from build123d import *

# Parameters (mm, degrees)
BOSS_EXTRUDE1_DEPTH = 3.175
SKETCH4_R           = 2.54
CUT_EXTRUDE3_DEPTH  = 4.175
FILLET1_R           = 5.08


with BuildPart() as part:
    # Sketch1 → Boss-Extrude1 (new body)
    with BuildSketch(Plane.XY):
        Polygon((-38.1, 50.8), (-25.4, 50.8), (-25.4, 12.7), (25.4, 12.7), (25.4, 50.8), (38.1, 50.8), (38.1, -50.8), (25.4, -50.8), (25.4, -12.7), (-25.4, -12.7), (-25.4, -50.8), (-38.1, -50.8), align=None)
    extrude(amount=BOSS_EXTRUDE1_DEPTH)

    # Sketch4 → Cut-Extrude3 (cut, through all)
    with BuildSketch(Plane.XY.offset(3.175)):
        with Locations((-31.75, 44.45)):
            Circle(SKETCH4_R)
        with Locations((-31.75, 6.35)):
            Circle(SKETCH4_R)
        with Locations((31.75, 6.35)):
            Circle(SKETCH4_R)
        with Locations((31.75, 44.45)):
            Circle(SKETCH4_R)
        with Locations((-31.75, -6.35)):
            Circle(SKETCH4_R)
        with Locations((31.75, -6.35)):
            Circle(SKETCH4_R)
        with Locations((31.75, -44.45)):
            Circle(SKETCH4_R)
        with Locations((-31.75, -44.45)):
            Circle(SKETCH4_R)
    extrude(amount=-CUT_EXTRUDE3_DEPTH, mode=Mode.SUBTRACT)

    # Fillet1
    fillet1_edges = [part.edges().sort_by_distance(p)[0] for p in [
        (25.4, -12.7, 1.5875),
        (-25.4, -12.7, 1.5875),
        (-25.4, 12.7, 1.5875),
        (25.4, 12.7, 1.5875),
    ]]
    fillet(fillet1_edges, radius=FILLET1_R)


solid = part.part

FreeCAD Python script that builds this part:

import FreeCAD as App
import Part
import Sketcher
from FreeCAD import Vector
Q = App.Units.Quantity


def edges_at(feature, points):
    """Names of the edges that pass closest to the given points."""
    edges = feature.Shape.Edges
    near = lambda p: min(range(len(edges)), key=lambda i: edges[i].distToShape(Part.Vertex(*p))[0])
    return sorted({f"Edge{near(p) + 1}" for p in points})


def add_polygon(sketch, points):
    """Adds a closed chain of lines whose ends are joined by coincident constraints."""
    first, n = sketch.GeometryCount, len(points)
    for a, b in zip(points, points[1:] + points[:1]):
        sketch.addGeometry(Part.LineSegment(App.Vector(*a, 0), App.Vector(*b, 0)), False)
    for i in range(n):
        sketch.addConstraint(Sketcher.Constraint("Coincident", first + i, 2, first + (i + 1) % n, 1))

doc = App.newDocument("Part")
body = doc.addObject("PartDesign::Body", "Body")

# Sketch on XY plane
sketch1 = body.newObject("Sketcher::SketchObject", "Sketch")
sketch1.AttachmentSupport = (doc.getObject("XY_Plane"), [""])
sketch1.MapMode = "FlatFace"
add_polygon(sketch1, [(-25.4, 50.8), (-38.1, 50.8), (-38.1, -50.8), (-25.4, -50.8), (-25.4, -12.7), (25.4, -12.7), (25.4, -50.8), (38.1, -50.8), (38.1, 50.8), (25.4, 50.8), (25.4, 12.7), (-25.4, 12.7)])  # lines 0-11
sketch1.addConstraint([
    Sketcher.Constraint("Horizontal", 0),
    Sketcher.Constraint("Vertical", 1),
    Sketcher.Constraint("Horizontal", 2),
    Sketcher.Constraint("Vertical", 3),
    Sketcher.Constraint("Horizontal", 4),
    Sketcher.Constraint("Vertical", 5),
    Sketcher.Constraint("Horizontal", 6),
    Sketcher.Constraint("Vertical", 7),
    Sketcher.Constraint("Horizontal", 8),
    Sketcher.Constraint("Vertical", 9),
    Sketcher.Constraint("Horizontal", 10),
    Sketcher.Constraint("Vertical", 11),
    Sketcher.Constraint("Symmetric", 0, 2, 6, 2, -1, 1),
    Sketcher.Constraint("Symmetric", 2, 2, 8, 2, -1, 1),
    Sketcher.Constraint("Symmetric", 4, 2, 10, 2, -1, 1),
    Sketcher.Constraint("Symmetric", 2, 2, 5, 2, -2),
    Sketcher.Constraint("DistanceX", 4, 1, 4, 2, Q("2 in")),
    Sketcher.Constraint("DistanceY", 1, 2, 1, 1, Q("4 in")),
    Sketcher.Constraint("DistanceX", 0, 2, 0, 1, Q("0.5 in")),
    Sketcher.Constraint("DistanceY", 3, 1, 3, 2, Q("1.5 in")),
])
pad1 = body.newObject("PartDesign::Pad", "Pad")
pad1.Profile = sketch1
pad1.Length = Q("0.125 in")

# Sketch on XY plane
sketch2 = body.newObject("Sketcher::SketchObject", "Sketch001")
sketch2.AttachmentSupport = (doc.getObject("XY_Plane"), [""])
sketch2.MapMode = "FlatFace"
sketch2.AttachmentOffset = App.Placement(Vector(0, 0, 0.125 * 25.4), App.Rotation())
sketch2.addGeometry([
    Part.Circle(Vector(-31.75, 44.45, 0), Vector(0, 0, 1), 2.54),  # 0
    Part.Circle(Vector(-31.75, 6.35, 0), Vector(0, 0, 1), 2.54),  # 1
    Part.Circle(Vector(31.75, 6.35, 0), Vector(0, 0, 1), 2.54),  # 2
    Part.Circle(Vector(31.75, 44.45, 0), Vector(0, 0, 1), 2.54),  # 3
    Part.Circle(Vector(-31.75, -6.35, 0), Vector(0, 0, 1), 2.54),  # 4
    Part.Circle(Vector(31.75, -6.35, 0), Vector(0, 0, 1), 2.54),  # 5
    Part.Circle(Vector(31.75, -44.45, 0), Vector(0, 0, 1), 2.54),  # 6
    Part.Circle(Vector(-31.75, -44.45, 0), Vector(0, 0, 1), 2.54),  # 7
], False)
sketch2.addConstraint([
    Sketcher.Constraint("Equal", 0, 1),
    Sketcher.Constraint("Equal", 1, 2),
    Sketcher.Constraint("Equal", 2, 3),
    Sketcher.Constraint("Equal", 3, 4),
    Sketcher.Constraint("Equal", 4, 5),
    Sketcher.Constraint("Equal", 5, 6),
    Sketcher.Constraint("Equal", 6, 7),
    Sketcher.Constraint("Symmetric", 2, 3, 4, 3, -1, 1),
    Sketcher.Constraint("Symmetric", 1, 3, 5, 3, -1, 1),
    Sketcher.Constraint("Symmetric", 0, 3, 6, 3, -1, 1),
    Sketcher.Constraint("Symmetric", 3, 3, 7, 3, -1, 1),
    Sketcher.Constraint("Symmetric", 1, 3, 2, 3, -2),
    Sketcher.Constraint("Symmetric", 0, 3, 3, 3, -2),
    Sketcher.Constraint("Vertical", 0, 3, 1, 3),
    Sketcher.Constraint("Diameter", 0, Q("0.2 in")),
    Sketcher.Constraint("DistanceY", 4, 3, 0, 3, Q("2 in")),
    Sketcher.Constraint("DistanceY", 1, 3, 0, 3, Q("1.5 in")),
    Sketcher.Constraint("DistanceX", 1, 3, 2, 3, Q("2.5 in")),
])
pocket1 = body.newObject("PartDesign::Pocket", "Pocket")
pocket1.Profile = sketch2
pocket1.Type = "ThroughAll"
doc.recompute()

fillet = body.newObject("PartDesign::Fillet", "Fillet")
fillet.Base = (pocket1, edges_at(pocket1, [
    (25.4, -12.7, 1.587),
    (-25.4, -12.7, 1.587),
    (-25.4, 12.7, 1.587),
    (25.4, 12.7, 1.587),
]))
fillet.Radius = Q("0.2 in")

doc.recompute()
